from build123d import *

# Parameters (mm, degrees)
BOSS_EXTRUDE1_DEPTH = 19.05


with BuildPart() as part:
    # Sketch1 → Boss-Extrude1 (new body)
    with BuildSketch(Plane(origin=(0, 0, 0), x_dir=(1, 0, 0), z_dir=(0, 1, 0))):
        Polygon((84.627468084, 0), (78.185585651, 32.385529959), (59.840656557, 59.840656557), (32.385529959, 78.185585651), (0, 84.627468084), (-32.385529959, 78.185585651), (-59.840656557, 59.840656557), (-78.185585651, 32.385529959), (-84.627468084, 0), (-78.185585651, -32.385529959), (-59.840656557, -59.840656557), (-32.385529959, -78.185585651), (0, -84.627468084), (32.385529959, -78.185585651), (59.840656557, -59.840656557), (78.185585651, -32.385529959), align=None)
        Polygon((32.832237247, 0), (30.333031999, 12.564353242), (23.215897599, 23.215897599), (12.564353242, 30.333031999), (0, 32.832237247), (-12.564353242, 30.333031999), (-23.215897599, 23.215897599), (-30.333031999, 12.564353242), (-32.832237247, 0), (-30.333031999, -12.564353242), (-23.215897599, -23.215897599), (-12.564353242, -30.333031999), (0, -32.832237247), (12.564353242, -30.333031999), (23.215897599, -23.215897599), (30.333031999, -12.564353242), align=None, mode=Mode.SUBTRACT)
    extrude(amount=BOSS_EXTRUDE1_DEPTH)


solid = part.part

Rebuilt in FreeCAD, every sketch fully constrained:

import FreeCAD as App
import Part
import Sketcher

V = App.Vector
Q = App.Units.Quantity


def add_polygon(sketch, points):
    """Adds a closed chain of lines whose ends are joined by coincident constraints."""
    first, n = sketch.GeometryCount, len(points)
    for a, b in zip(points, points[1:] + points[:1]):
        sketch.addGeometry(Part.LineSegment(App.Vector(*a, 0), App.Vector(*b, 0)), False)
    for i in range(n):
        sketch.addConstraint(Sketcher.Constraint("Coincident", first + i, 2, first + (i + 1) % n, 1))

doc = App.newDocument("Part")
body = doc.addObject("PartDesign::Body", "Body")

sketch1 = body.newObject("Sketcher::SketchObject", "Sketch")
sketch1.AttachmentSupport = (doc.getObject("XZ_Plane"), [""])
sketch1.MapMode = "FlatFace"
add_polygon(sketch1, [(85, 0), (78, -32), (60, -60), (32, -78), (0, -85), (-32, -78), (-60, -60), (-78, -32), (-85, 0), (-78, 32), (-60, 60), (-32, 78), (0, 85), (32, 78), (60, 60), (78, 32)])
add_polygon(sketch1, [(30, -13), (33, 0), (30, 13), (23, 23), (13, 30), (0, 33), (-13, 30), (-23, 23), (-30, 13), (-33, 0), (-30, -13), (-23, -23), (-13, -30), (0, -33), (13, -30), (23, -23)])
sketch1.addConstraint([
    Sketcher.Constraint("Symmetric", 0, 2, 8, 2, -1, 1),
    Sketcher.Constraint("Symmetric", 1, 2, 9, 2, -1, 1),
    Sketcher.Constraint("Symmetric", 2, 2, 10, 2, -1, 1),
    Sketcher.Constraint("Symmetric", 3, 2, 11, 2, -1, 1),
    Sketcher.Constraint("Symmetric", 4, 2, 12, 2, -1, 1),
    Sketcher.Constraint("Symmetric", 5, 2, 13, 2, -1, 1),
    Sketcher.Constraint("Symmetric", 6, 2, 14, 2, -1, 1),
    Sketcher.Constraint("Symmetric", 7, 2, 15, 2, -1, 1),
    Sketcher.Constraint("Symmetric", 16, 2, 24, 2, -1, 1),
    Sketcher.Constraint("Symmetric", 17, 2, 25, 2, -1, 1),
    Sketcher.Constraint("Symmetric", 18, 2, 26, 2, -1, 1),
    Sketcher.Constraint("Symmetric", 19, 2, 27, 2, -1, 1),
    Sketcher.Constraint("Symmetric", 20, 2, 28, 2, -1, 1),
    Sketcher.Constraint("Symmetric", 21, 2, 29, 2, -1, 1),
    Sketcher.Constraint("Symmetric", 22, 2, 30, 2, -1, 1),
    Sketcher.Constraint("Symmetric", 23, 2, 31, 2, -1, 1),
    Sketcher.Constraint("Symmetric", 2, 2, 4, 2, -2),
    Sketcher.Constraint("Symmetric", 1, 2, 5, 2, -2),
    Sketcher.Constraint("Symmetric", 0, 2, 6, 2, -2),
    Sketcher.Constraint("Symmetric", 19, 2, 21, 2, -2),
    Sketcher.Constraint("Symmetric", 18, 2, 22, 2, -2),
    Sketcher.Constraint("Symmetric", 17, 2, 23, 2, -2),
    Sketcher.Constraint("PointOnObject", 3, 2, -2),
    Sketcher.Constraint("PointOnObject", 7, 2, -1),
    Sketcher.Constraint("PointOnObject", 16, 2, -1),
    Sketcher.Constraint("PointOnObject", 20, 2, -2),
    Sketcher.Constraint("Perpendicular", 0, 4),
    Sketcher.Constraint("Perpendicular", 1, 5),
    Sketcher.Constraint("Perpendicular", 12, 16),
    Sketcher.Constraint("Parallel", 14, 18),
    Sketcher.Constraint("Parallel", 13, 19),
    Sketcher.Constraint("Perpendicular", 16, 20),
    Sketcher.Constraint("Equal", 0, 1),
    Sketcher.Constraint("Equal", 1, 2),
    Sketcher.Constraint("Equal", 2, 3),
    Sketcher.Constraint("Equal", 17, 18),
    Sketcher.Constraint("Equal", 18, 19),
    Sketcher.Constraint("Equal", 19, 20),
    Sketcher.Constraint("Distance", 0, Q("1.3 in")),
    Sketcher.Constraint("Angle", 0, Q("-101.25 deg")),
    Sketcher.Constraint("Angle", 1, Q("-123.75 deg")),
    Sketcher.Constraint("DistanceX", -1, 1, 17, 2, Q("30.333032 mm")),
])
pad1 = body.newObject("PartDesign::Pad", "Pad")
pad1.Profile = sketch1
pad1.Length = Q("0.75 in")
pad1.Reversed = True

doc.recompute()
